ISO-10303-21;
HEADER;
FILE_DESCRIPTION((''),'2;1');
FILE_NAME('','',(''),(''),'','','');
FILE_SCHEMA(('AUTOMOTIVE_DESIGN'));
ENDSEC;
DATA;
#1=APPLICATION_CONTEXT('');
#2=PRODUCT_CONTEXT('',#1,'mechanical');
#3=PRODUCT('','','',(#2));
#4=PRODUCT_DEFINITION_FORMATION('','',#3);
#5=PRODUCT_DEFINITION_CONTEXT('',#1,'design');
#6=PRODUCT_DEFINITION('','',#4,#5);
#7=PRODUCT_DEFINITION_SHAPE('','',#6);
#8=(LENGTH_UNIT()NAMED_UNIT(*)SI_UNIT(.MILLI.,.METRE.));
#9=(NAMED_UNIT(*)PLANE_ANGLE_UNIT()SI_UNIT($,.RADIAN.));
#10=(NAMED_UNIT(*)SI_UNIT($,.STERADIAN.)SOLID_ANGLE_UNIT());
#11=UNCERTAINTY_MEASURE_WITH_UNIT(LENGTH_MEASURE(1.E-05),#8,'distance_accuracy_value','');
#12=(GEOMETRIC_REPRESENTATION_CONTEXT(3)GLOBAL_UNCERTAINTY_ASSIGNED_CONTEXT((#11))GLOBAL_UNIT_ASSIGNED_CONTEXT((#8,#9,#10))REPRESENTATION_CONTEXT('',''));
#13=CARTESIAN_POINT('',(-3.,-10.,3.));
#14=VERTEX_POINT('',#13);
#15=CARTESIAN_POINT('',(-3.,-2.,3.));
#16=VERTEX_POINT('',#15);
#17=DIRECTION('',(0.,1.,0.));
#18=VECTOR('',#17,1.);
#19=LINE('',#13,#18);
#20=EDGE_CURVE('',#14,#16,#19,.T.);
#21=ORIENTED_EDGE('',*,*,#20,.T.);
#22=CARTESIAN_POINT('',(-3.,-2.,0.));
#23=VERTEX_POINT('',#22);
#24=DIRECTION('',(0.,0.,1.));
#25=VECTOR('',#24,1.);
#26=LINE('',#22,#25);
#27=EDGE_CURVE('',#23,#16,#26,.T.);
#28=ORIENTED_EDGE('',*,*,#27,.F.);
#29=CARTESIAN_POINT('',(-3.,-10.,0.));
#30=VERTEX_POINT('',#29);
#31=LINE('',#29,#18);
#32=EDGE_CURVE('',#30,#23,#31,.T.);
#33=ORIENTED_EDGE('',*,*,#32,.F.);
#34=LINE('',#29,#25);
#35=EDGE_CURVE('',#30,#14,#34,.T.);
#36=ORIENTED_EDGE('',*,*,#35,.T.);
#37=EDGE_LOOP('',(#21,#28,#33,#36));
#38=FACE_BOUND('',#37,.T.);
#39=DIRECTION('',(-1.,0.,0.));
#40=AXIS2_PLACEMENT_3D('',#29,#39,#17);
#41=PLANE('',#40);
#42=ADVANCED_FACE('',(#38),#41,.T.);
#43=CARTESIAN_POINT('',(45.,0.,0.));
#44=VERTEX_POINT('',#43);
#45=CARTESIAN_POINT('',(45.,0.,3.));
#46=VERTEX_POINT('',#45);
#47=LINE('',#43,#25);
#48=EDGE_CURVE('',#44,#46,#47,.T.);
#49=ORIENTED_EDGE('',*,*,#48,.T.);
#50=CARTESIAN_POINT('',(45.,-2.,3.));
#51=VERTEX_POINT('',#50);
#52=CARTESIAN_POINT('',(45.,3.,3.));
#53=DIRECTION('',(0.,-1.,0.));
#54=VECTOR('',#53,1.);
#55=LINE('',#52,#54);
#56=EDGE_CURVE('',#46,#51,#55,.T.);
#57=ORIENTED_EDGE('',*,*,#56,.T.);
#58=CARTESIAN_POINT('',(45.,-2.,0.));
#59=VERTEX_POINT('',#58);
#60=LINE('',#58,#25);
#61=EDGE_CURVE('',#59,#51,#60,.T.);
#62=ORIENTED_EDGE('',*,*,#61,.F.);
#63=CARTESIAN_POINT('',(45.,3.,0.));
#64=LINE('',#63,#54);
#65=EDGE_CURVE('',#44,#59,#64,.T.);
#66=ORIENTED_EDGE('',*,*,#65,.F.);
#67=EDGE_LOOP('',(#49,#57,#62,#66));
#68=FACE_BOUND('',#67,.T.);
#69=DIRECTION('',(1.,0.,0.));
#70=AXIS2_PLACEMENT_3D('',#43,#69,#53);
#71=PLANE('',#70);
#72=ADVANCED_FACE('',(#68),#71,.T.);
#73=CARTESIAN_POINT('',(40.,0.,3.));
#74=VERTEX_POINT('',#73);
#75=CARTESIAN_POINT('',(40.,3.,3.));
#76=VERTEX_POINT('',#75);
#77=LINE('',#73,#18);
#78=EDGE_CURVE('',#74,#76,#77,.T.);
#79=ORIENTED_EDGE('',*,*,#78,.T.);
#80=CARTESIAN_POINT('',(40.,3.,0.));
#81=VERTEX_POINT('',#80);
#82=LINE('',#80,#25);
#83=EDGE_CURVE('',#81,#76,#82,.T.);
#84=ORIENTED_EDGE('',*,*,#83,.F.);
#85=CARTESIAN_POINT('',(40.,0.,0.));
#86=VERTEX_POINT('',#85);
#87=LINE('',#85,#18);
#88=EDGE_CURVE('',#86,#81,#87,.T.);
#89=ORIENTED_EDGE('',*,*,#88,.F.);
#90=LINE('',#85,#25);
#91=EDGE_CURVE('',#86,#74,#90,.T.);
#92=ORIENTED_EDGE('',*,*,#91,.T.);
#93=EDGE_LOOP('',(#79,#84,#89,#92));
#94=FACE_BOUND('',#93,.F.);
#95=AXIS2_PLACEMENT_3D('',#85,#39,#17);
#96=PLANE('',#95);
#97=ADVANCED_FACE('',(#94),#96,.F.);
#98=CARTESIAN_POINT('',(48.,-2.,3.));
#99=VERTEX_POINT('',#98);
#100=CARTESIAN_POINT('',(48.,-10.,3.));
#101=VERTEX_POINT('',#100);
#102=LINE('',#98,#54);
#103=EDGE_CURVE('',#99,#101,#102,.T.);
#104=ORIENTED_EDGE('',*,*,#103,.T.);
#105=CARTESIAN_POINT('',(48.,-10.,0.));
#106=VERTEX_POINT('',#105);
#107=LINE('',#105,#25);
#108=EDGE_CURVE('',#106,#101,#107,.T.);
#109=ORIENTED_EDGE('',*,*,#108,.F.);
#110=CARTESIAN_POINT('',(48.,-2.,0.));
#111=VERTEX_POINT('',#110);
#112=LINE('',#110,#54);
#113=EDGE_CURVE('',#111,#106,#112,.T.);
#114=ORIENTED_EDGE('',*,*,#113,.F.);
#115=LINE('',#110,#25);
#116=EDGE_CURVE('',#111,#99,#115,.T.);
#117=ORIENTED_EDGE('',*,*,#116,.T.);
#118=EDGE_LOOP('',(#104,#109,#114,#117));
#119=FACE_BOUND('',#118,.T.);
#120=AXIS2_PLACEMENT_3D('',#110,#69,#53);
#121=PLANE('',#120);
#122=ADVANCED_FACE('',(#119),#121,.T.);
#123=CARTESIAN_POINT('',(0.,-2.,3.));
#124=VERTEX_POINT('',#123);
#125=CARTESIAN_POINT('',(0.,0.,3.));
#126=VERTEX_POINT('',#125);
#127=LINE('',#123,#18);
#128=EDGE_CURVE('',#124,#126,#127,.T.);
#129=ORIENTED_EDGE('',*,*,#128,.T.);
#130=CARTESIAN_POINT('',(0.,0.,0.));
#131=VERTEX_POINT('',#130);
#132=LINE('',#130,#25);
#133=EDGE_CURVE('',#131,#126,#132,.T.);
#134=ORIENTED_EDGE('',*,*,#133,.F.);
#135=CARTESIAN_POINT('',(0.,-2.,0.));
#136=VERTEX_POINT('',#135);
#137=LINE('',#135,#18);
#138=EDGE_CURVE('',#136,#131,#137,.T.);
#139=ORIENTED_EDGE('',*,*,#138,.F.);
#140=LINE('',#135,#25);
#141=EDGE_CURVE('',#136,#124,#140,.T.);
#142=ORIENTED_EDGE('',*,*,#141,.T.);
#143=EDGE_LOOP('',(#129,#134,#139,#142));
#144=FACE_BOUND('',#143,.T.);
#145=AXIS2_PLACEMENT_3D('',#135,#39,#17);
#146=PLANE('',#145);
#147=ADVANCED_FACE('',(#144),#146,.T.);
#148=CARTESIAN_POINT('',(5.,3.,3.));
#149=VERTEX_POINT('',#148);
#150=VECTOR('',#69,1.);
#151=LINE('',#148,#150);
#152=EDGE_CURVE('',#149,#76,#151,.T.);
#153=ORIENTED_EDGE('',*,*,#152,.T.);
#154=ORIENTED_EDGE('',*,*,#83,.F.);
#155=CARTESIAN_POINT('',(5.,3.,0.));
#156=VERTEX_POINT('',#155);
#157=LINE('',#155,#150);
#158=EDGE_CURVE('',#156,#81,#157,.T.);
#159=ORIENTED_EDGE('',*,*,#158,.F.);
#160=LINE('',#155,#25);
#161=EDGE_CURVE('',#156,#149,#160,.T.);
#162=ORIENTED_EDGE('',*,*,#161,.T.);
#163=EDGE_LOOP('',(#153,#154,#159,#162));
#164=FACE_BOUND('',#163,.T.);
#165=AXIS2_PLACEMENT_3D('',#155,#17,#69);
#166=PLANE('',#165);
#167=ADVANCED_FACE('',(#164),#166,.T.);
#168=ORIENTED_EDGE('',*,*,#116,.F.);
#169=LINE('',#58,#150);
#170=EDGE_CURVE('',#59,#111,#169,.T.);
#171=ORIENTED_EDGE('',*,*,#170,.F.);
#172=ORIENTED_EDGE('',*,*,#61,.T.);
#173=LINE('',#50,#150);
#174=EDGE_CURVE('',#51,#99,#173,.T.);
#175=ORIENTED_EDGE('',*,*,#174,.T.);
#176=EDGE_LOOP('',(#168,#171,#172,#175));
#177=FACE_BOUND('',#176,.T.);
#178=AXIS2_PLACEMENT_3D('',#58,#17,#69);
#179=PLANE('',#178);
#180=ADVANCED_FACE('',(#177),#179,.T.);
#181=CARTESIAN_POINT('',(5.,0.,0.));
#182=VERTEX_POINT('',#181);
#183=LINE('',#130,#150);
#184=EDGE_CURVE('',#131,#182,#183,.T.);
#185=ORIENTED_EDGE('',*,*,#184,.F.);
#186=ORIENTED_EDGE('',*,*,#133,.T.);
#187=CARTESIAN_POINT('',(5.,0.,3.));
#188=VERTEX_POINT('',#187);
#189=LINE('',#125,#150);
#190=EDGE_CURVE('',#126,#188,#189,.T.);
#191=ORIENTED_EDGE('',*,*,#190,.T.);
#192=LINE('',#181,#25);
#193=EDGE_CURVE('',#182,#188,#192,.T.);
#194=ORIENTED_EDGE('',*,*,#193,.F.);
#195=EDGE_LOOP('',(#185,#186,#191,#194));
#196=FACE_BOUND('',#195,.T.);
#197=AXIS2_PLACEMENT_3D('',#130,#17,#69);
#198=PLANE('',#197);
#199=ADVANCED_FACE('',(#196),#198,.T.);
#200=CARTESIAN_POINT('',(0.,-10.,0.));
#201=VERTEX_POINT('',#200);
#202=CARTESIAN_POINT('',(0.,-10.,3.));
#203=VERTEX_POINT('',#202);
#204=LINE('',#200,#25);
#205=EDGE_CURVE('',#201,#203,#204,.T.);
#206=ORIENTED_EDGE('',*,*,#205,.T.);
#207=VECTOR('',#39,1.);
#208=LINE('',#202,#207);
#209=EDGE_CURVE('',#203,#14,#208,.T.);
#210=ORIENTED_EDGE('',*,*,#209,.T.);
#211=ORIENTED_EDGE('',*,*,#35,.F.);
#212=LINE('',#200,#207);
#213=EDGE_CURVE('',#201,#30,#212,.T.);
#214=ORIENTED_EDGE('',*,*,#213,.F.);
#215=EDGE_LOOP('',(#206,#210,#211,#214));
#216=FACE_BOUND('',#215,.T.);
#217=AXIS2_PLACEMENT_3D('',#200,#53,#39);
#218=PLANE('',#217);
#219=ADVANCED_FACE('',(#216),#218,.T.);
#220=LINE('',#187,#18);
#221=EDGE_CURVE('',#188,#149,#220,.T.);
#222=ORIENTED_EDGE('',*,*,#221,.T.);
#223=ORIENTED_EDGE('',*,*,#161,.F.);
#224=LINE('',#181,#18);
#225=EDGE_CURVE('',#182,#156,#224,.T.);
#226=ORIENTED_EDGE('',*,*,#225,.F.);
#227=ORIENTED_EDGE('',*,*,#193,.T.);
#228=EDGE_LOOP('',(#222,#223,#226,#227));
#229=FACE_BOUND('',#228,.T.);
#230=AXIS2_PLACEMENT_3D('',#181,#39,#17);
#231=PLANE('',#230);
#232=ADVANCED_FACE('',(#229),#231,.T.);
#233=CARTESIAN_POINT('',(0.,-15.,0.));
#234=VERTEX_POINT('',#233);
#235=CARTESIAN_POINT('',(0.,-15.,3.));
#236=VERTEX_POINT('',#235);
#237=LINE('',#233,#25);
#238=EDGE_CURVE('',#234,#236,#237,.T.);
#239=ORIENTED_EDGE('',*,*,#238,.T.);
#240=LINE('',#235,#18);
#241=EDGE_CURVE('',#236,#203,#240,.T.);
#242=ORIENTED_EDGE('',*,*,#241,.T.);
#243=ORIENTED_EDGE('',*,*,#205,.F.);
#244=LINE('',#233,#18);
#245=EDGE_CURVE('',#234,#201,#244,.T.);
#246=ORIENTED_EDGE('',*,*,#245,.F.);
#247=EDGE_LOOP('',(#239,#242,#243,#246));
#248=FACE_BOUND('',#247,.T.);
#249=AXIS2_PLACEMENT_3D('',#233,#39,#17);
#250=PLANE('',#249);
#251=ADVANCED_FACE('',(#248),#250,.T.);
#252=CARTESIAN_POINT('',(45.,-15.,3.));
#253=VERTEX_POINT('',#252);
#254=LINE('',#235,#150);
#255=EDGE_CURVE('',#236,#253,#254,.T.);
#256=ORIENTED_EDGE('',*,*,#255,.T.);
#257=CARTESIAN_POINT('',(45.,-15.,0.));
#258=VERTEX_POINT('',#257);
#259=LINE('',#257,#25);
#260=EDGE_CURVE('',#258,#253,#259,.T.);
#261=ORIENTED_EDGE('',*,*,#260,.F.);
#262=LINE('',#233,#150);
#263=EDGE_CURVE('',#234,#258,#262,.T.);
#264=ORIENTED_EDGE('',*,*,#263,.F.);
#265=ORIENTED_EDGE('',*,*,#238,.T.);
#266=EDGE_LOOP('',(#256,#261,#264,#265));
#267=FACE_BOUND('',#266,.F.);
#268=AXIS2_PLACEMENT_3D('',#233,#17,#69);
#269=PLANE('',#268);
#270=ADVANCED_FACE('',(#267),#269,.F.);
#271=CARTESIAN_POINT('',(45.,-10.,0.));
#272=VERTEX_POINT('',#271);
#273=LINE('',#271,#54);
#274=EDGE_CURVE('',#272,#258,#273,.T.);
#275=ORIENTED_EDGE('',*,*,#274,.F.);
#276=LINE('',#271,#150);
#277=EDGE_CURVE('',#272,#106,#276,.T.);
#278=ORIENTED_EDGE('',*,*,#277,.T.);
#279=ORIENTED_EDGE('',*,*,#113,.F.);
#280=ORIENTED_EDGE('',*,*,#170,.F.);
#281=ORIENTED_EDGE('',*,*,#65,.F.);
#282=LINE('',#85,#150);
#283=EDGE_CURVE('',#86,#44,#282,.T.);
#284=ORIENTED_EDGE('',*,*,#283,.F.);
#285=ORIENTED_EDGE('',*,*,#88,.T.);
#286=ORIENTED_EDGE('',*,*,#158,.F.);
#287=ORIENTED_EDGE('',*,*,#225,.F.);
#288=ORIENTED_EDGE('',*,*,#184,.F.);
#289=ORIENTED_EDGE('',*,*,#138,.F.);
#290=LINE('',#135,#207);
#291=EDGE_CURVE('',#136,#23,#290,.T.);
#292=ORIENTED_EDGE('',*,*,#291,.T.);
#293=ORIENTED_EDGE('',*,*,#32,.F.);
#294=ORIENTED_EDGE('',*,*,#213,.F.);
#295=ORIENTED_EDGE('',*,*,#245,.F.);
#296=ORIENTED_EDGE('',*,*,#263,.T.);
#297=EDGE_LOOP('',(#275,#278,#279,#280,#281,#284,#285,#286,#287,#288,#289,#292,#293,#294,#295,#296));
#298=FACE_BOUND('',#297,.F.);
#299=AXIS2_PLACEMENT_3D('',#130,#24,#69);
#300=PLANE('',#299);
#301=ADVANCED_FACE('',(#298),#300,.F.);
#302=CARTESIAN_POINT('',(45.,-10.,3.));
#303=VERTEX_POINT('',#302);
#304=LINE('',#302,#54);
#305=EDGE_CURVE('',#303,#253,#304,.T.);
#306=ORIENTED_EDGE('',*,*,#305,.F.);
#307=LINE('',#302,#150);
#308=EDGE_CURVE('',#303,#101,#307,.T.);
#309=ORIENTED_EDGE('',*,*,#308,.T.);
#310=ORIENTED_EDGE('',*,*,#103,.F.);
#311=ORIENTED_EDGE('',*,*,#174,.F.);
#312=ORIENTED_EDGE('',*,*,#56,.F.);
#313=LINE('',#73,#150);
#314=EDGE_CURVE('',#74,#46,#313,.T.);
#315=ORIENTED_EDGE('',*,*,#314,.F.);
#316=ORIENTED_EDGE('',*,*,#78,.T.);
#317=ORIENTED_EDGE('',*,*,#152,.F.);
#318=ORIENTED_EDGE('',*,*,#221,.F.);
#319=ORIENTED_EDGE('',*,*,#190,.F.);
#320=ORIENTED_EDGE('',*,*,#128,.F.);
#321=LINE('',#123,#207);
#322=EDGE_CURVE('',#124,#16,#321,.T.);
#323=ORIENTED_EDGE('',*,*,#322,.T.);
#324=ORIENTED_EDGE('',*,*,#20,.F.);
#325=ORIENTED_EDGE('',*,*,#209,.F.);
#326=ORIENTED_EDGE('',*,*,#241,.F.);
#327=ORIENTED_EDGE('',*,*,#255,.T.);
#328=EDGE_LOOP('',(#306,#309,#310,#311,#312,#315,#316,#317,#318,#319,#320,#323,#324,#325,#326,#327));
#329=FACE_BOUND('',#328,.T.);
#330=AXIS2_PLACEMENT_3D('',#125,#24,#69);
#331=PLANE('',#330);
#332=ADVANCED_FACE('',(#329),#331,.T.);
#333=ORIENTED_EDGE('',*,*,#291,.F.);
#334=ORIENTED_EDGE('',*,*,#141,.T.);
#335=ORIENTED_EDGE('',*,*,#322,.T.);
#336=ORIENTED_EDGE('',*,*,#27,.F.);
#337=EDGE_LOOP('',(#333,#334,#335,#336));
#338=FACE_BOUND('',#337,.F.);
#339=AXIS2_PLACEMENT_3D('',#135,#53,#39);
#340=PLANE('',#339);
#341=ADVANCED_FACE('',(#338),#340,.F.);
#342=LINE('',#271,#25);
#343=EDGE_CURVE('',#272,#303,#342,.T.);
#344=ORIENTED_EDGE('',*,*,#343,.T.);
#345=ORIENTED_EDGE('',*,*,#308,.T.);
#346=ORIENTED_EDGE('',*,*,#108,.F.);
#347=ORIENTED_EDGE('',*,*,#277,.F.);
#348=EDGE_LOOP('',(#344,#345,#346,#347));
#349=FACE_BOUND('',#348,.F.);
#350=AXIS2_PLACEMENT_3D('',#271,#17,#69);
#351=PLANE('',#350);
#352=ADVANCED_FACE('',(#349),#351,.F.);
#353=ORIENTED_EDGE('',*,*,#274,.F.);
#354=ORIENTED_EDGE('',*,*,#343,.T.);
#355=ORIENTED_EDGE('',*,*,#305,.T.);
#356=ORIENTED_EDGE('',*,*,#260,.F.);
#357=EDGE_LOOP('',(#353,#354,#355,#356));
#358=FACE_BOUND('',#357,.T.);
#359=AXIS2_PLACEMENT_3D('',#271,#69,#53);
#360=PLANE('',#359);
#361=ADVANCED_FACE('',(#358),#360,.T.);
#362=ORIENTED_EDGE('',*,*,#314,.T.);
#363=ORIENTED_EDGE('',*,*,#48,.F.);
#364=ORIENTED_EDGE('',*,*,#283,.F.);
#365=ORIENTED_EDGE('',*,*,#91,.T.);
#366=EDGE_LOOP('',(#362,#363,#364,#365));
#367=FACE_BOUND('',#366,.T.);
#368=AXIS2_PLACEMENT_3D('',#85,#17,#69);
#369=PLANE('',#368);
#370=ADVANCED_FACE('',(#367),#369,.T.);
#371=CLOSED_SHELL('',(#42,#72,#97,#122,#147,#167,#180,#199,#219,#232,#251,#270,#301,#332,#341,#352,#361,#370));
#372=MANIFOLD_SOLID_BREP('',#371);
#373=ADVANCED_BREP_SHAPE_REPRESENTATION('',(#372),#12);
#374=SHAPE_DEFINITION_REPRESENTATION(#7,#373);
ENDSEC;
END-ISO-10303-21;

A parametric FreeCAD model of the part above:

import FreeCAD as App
import Part
import Sketcher
Q = App.Units.Quantity

doc = App.newDocument("Part")
body = doc.addObject("PartDesign::Body", "Body")

# Sketch on XY plane
sketch1 = body.newObject("Sketcher::SketchObject", "Sketch")
sketch1.AttachmentSupport = (doc.getObject("XY_Plane"), [""])
sketch1.MapMode = "FlatFace"
sketch1.addGeometry([
    Part.LineSegment(App.Vector(5, 3, 0), App.Vector(5, 0, 0)),  # 0
    Part.LineSegment(App.Vector(5, 0, 0), App.Vector(0, 0, 0)),  # 1
    Part.LineSegment(App.Vector(0, 0, 0), App.Vector(0, -2, 0)),  # 2
    Part.LineSegment(App.Vector(0, -2, 0), App.Vector(-3, -2, 0)),  # 3
    Part.LineSegment(App.Vector(-3, -2, 0), App.Vector(-3, -10, 0)),  # 4
    Part.LineSegment(App.Vector(-3, -10, 0), App.Vector(0, -10, 0)),  # 5
    Part.LineSegment(App.Vector(0, -10, 0), App.Vector(0, -15, 0)),  # 6
    Part.LineSegment(App.Vector(0, -15, 0), App.Vector(45, -15, 0)),  # 7
    Part.LineSegment(App.Vector(45, -15, 0), App.Vector(45, -10, 0)),  # 8
    Part.LineSegment(App.Vector(45, -10, 0), App.Vector(48, -10, 0)),  # 9
    Part.LineSegment(App.Vector(48, -10, 0), App.Vector(48, -2, 0)),  # 10
    Part.LineSegment(App.Vector(48, -2, 0), App.Vector(45, -2, 0)),  # 11
    Part.LineSegment(App.Vector(45, -2, 0), App.Vector(45, 0, 0)),  # 12
    Part.LineSegment(App.Vector(45, 0, 0), App.Vector(40, 0, 0)),  # 13
    Part.LineSegment(App.Vector(40, 0, 0), App.Vector(40, 3, 0)),  # 14
    Part.LineSegment(App.Vector(40, 3, 0), App.Vector(5, 3, 0)),  # 15
], False)
sketch1.addConstraint([
    Sketcher.Constraint("Coincident", 0, 2, 1, 1),
    Sketcher.Constraint("Coincident", 1, 2, 2, 1),
    Sketcher.Constraint("Coincident", 2, 2, 3, 1),
    Sketcher.Constraint("Coincident", 3, 2, 4, 1),
    Sketcher.Constraint("Coincident", 4, 2, 5, 1),
    Sketcher.Constraint("Coincident", 5, 2, 6, 1),
    Sketcher.Constraint("Coincident", 6, 2, 7, 1),
    Sketcher.Constraint("Coincident", 7, 2, 8, 1),
    Sketcher.Constraint("Coincident", 8, 2, 9, 1),
    Sketcher.Constraint("Coincident", 9, 2, 10, 1),
    Sketcher.Constraint("Coincident", 10, 2, 11, 1),
    Sketcher.Constraint("Coincident", 11, 2, 12, 1),
    Sketcher.Constraint("Coincident", 12, 2, 13, 1),
    Sketcher.Constraint("Coincident", 13, 2, 14, 1),
    Sketcher.Constraint("Coincident", 14, 2, 15, 1),
    Sketcher.Constraint("Coincident", 15, 2, 0, 1),
    Sketcher.Constraint("Vertical", 0),
    Sketcher.Constraint("Horizontal", 1),
    Sketcher.Constraint("Vertical", 2),
    Sketcher.Constraint("Horizontal", 3),
    Sketcher.Constraint("Vertical", 4),
    Sketcher.Constraint("Horizontal", 5),
    Sketcher.Constraint("Vertical", 6),
    Sketcher.Constraint("Horizontal", 7),
    Sketcher.Constraint("Vertical", 8),
    Sketcher.Constraint("Horizontal", 9),
    Sketcher.Constraint("Vertical", 10),
    Sketcher.Constraint("Horizontal", 11),
    Sketcher.Constraint("Vertical", 12),
    Sketcher.Constraint("Horizontal", 13),
    Sketcher.Constraint("Vertical", 14),
    Sketcher.Constraint("Horizontal", 15),
    Sketcher.Constraint("Coincident", 1, 2, -1, 1),
    Sketcher.Constraint("PointOnObject", 5, 2, -2),
    Sketcher.Constraint("PointOnObject", 12, 2, -1),
    Sketcher.Constraint("Horizontal", 5, 2, 8, 2),
    Sketcher.Constraint("Horizontal", 3, 2, 10, 2),
    Sketcher.Constraint("Vertical", 8, 2, 11, 2),
    Sketcher.Constraint("Equal", 5, 9),
    Sketcher.Constraint("Equal", 1, 13),
    Sketcher.Constraint("Equal", 11, 0),
    Sketcher.Constraint("Equal", 13, 6),
    Sketcher.Constraint("DistanceX", 1, 2, 1, 1, Q("5 mm")),
    Sketcher.Constraint("DistanceX", 3, 2, 3, 1, Q("3 mm")),
    Sketcher.Constraint("DistanceX", 7, 1, 7, 2, Q("45 mm")),
    Sketcher.Constraint("DistanceY", 2, 2, 2, 1, Q("2 mm")),
    Sketcher.Constraint("DistanceY", 4, 2, 4, 1, Q("8 mm")),
])
pad1 = body.newObject("PartDesign::Pad", "Pad")
pad1.Profile = sketch1
pad1.Length = 3

doc.recompute()
